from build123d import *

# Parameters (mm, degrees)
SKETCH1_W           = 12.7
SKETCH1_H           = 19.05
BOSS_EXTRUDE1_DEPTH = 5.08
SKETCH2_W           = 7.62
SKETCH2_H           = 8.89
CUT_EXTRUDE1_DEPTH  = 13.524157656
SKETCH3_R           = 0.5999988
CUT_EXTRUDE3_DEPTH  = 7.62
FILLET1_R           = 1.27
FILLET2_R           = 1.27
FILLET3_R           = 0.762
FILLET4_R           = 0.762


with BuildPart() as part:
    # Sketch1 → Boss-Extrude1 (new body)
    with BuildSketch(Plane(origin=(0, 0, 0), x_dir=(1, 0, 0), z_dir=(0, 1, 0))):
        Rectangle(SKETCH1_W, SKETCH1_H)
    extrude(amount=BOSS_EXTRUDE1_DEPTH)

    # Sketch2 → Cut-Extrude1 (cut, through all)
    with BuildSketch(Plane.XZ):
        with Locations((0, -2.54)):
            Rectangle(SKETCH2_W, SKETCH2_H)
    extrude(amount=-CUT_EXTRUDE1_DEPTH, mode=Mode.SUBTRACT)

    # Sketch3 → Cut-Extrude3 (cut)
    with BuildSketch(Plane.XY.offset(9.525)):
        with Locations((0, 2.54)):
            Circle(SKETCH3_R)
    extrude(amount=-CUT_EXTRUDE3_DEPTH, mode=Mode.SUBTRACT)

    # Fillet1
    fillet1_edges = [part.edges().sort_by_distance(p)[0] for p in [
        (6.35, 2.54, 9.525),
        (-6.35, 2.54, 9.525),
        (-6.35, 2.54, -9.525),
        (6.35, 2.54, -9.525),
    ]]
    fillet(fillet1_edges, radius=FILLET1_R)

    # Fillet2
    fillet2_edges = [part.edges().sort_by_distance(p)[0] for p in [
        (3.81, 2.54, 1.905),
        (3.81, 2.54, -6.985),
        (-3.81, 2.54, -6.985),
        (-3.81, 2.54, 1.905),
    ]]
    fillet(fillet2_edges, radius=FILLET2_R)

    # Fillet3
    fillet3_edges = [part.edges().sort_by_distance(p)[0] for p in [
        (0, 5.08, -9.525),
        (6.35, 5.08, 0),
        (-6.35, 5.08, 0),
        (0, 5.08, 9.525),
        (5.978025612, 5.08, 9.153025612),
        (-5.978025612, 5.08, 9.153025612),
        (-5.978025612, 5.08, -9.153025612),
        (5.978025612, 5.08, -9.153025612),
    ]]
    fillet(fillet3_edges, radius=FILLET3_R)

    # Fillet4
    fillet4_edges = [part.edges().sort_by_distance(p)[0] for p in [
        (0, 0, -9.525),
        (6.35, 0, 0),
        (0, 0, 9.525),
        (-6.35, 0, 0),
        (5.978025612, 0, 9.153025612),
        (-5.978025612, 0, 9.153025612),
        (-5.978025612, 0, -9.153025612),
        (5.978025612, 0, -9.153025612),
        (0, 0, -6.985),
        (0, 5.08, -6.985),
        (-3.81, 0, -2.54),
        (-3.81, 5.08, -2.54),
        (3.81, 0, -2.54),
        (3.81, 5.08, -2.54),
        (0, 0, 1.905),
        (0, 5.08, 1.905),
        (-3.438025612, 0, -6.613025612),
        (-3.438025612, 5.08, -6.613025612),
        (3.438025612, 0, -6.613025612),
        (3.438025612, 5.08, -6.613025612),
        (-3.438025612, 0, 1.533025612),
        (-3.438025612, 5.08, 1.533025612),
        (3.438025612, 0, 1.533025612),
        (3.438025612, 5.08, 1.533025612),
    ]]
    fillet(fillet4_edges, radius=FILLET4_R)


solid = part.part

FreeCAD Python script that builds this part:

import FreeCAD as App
import Part
import Sketcher
Q = App.Units.Quantity


def edges_at(feature, points):
    """Names of the edges that pass closest to the given points."""
    edges = feature.Shape.Edges
    near = lambda p: min(range(len(edges)), key=lambda i: edges[i].distToShape(Part.Vertex(*p))[0])
    return sorted({f"Edge{near(p) + 1}" for p in points})


def add_polygon(sketch, points):
    """Adds a closed chain of lines whose ends are joined by coincident constraints."""
    first, n = sketch.GeometryCount, len(points)
    for a, b in zip(points, points[1:] + points[:1]):
        sketch.addGeometry(Part.LineSegment(App.Vector(*a, 0), App.Vector(*b, 0)), False)
    for i in range(n):
        sketch.addConstraint(Sketcher.Constraint("Coincident", first + i, 2, first + (i + 1) % n, 1))

doc = App.newDocument("Part")
params = doc.addObject("Spreadsheet::Sheet", "Params")
for row, (alias, value) in enumerate([
    ("sketch1_width", "0.5 in"),
    ("sketch1_height", "0.75 in"),
    ("pad1_length", "0.2 in"),
    ("sketch2_width", "0.3 in"),
    ("sketch2_height", "0.35 in"),
    ("pocket2_length", "0.3 in"),
    ("fillet_radius", "0.05 in"),
    ("fillet2_radius", "0.05 in"),
    ("fillet3_radius", "0.03 in"),
    ("fillet4_radius", "0.03 in"),
], start=1):
    params.set(f"A{row}", alias)
    params.set(f"B{row}", "=" + value)
    params.setAlias(f"B{row}", alias)

body = doc.addObject("PartDesign::Body", "Body")

# Sketch on XZ plane
sketch1 = body.newObject("Sketcher::SketchObject", "Sketch")
sketch1.AttachmentSupport = (doc.getObject("XZ_Plane"), [""])
sketch1.MapMode = "FlatFace"
add_polygon(sketch1, [(-6, -10), (-6, 10), (6, 10), (6, -10)])  # lines 0-3
sketch1.addConstraint([
    Sketcher.Constraint("Vertical", 0),
    Sketcher.Constraint("Horizontal", 1),
    Sketcher.Constraint("Vertical", 2),
    Sketcher.Constraint("Horizontal", 3),
    Sketcher.Constraint("Symmetric", 0, 2, 2, 2, -1, 1),
    Sketcher.Constraint("DistanceX", 1, 1, 1, 2, Q("0.5 in")),
    Sketcher.Constraint("DistanceY", 0, 1, 0, 2, Q("0.75 in")),
])
sketch1.setExpression("Constraints[9]", "Params.sketch1_width")
sketch1.setExpression("Constraints[10]", "Params.sketch1_height")
pad1 = body.newObject("PartDesign::Pad", "Pad")
pad1.Profile = sketch1
pad1.setExpression("Length", "Params.pad1_length")
pad1.Reversed = True

# Sketch on XZ plane
sketch2 = body.newObject("Sketcher::SketchObject", "Sketch001")
sketch2.AttachmentSupport = (doc.getObject("XZ_Plane"), [""])
sketch2.MapMode = "FlatFace"
add_polygon(sketch2, [(-4, 2), (-4, -7), (4, -7), (4, 2)])  # lines 0-3
sketch2.addConstraint([
    Sketcher.Constraint("Vertical", 0),
    Sketcher.Constraint("Horizontal", 1),
    Sketcher.Constraint("Vertical", 2),
    Sketcher.Constraint("Horizontal", 3),
    Sketcher.Constraint("DistanceX", 1, 1, 1, 2, Q("0.3 in")),
    Sketcher.Constraint("DistanceY", 0, 2, 0, 1, Q("0.35 in")),
    Sketcher.Constraint("DistanceX", 0, 2, -1, 1, Q("0.15 in")),
    Sketcher.Constraint("DistanceY", 0, 2, -1, 1, Q("0.275 in")),
])
sketch2.setExpression("Constraints[8]", "Params.sketch2_width")
sketch2.setExpression("Constraints[9]", "Params.sketch2_height")
pocket1 = body.newObject("PartDesign::Pocket", "Pocket")
pocket1.Profile = sketch2
pocket1.Type = "ThroughAll"

# Sketch on XY plane
sketch3 = body.newObject("Sketcher::SketchObject", "Sketch002")
sketch3.AttachmentSupport = (doc.getObject("XY_Plane"), [""])
sketch3.MapMode = "FlatFace"
sketch3.AttachmentOffset = App.Placement(App.Vector(0, 0, 0.375 * 25.4), App.Rotation())
sketch3.addGeometry(Part.Circle(App.Vector(0, 2.5, 0), App.Vector(0, 0, 1), 0.6), False)
sketch3.addConstraint([
    Sketcher.Constraint("PointOnObject", 0, 3, -2),
    Sketcher.Constraint("DistanceY", -1, 1, 0, 3, Q("0.1 in")),
    Sketcher.Constraint("Diameter", 0, Q("1.199998 mm")),
])
pocket2 = body.newObject("PartDesign::Pocket", "Pocket001")
pocket2.Profile = sketch3
pocket2.setExpression("Length", "Params.pocket2_length")
doc.recompute()

fillet = body.newObject("PartDesign::Fillet", "Fillet")
fillet.Base = (pocket2, edges_at(pocket2, [
    (6.35, 2.54, 9.525),
    (-6.35, 2.54, 9.525),
    (-6.35, 2.54, -9.525),
    (6.35, 2.54, -9.525),
]))
fillet.setExpression("Radius", "Params.fillet_radius")
doc.recompute()

fillet2 = body.newObject("PartDesign::Fillet", "Fillet001")
fillet2.Base = (fillet, edges_at(fillet, [
    (3.81, 2.54, 1.905),
    (3.81, 2.54, -6.985),
    (-3.81, 2.54, -6.985),
    (-3.81, 2.54, 1.905),
]))
fillet2.setExpression("Radius", "Params.fillet2_radius")
doc.recompute()

fillet3 = body.newObject("PartDesign::Fillet", "Fillet002")
fillet3.Base = (fillet2, edges_at(fillet2, [
    (0, 5.08, -9.525),
    (6.35, 5.08, 0),
    (-6.35, 5.08, 0),
    (0, 5.08, 9.525),
    (5.978, 5.08, 9.153),
    (-5.978, 5.08, 9.153),
    (-5.978, 5.08, -9.153),
    (5.978, 5.08, -9.153),
]))
fillet3.setExpression("Radius", "Params.fillet3_radius")
doc.recompute()

fillet4 = body.newObject("PartDesign::Fillet", "Fillet003")
fillet4.Base = (fillet3, edges_at(fillet3, [
    (0, 0, -9.525),
    (6.35, 0, 0),
    (0, 0, 9.525),
    (-6.35, 0, 0),
    (5.978, 0, 9.153),
    (-5.978, 0, 9.153),
    (-5.978, 0, -9.153),
    (5.978, 0, -9.153),
    (0, 0, -6.985),
    (0, 5.08, -6.985),
    (-3.81, 0, -2.54),
    (-3.81, 5.08, -2.54),
    (3.81, 0, -2.54),
    (3.81, 5.08, -2.54),
    (0, 0, 1.905),
    (0, 5.08, 1.905),
    (-3.438, 0, -6.613),
    (-3.438, 5.08, -6.613),
    (3.438, 0, -6.613),
    (3.438, 5.08, -6.613),
    (-3.438, 0, 1.533),
    (-3.438, 5.08, 1.533),
    (3.438, 0, 1.533),
    (3.438, 5.08, 1.533),
]))
fillet4.setExpression("Radius", "Params.fillet4_radius")

doc.recompute()
